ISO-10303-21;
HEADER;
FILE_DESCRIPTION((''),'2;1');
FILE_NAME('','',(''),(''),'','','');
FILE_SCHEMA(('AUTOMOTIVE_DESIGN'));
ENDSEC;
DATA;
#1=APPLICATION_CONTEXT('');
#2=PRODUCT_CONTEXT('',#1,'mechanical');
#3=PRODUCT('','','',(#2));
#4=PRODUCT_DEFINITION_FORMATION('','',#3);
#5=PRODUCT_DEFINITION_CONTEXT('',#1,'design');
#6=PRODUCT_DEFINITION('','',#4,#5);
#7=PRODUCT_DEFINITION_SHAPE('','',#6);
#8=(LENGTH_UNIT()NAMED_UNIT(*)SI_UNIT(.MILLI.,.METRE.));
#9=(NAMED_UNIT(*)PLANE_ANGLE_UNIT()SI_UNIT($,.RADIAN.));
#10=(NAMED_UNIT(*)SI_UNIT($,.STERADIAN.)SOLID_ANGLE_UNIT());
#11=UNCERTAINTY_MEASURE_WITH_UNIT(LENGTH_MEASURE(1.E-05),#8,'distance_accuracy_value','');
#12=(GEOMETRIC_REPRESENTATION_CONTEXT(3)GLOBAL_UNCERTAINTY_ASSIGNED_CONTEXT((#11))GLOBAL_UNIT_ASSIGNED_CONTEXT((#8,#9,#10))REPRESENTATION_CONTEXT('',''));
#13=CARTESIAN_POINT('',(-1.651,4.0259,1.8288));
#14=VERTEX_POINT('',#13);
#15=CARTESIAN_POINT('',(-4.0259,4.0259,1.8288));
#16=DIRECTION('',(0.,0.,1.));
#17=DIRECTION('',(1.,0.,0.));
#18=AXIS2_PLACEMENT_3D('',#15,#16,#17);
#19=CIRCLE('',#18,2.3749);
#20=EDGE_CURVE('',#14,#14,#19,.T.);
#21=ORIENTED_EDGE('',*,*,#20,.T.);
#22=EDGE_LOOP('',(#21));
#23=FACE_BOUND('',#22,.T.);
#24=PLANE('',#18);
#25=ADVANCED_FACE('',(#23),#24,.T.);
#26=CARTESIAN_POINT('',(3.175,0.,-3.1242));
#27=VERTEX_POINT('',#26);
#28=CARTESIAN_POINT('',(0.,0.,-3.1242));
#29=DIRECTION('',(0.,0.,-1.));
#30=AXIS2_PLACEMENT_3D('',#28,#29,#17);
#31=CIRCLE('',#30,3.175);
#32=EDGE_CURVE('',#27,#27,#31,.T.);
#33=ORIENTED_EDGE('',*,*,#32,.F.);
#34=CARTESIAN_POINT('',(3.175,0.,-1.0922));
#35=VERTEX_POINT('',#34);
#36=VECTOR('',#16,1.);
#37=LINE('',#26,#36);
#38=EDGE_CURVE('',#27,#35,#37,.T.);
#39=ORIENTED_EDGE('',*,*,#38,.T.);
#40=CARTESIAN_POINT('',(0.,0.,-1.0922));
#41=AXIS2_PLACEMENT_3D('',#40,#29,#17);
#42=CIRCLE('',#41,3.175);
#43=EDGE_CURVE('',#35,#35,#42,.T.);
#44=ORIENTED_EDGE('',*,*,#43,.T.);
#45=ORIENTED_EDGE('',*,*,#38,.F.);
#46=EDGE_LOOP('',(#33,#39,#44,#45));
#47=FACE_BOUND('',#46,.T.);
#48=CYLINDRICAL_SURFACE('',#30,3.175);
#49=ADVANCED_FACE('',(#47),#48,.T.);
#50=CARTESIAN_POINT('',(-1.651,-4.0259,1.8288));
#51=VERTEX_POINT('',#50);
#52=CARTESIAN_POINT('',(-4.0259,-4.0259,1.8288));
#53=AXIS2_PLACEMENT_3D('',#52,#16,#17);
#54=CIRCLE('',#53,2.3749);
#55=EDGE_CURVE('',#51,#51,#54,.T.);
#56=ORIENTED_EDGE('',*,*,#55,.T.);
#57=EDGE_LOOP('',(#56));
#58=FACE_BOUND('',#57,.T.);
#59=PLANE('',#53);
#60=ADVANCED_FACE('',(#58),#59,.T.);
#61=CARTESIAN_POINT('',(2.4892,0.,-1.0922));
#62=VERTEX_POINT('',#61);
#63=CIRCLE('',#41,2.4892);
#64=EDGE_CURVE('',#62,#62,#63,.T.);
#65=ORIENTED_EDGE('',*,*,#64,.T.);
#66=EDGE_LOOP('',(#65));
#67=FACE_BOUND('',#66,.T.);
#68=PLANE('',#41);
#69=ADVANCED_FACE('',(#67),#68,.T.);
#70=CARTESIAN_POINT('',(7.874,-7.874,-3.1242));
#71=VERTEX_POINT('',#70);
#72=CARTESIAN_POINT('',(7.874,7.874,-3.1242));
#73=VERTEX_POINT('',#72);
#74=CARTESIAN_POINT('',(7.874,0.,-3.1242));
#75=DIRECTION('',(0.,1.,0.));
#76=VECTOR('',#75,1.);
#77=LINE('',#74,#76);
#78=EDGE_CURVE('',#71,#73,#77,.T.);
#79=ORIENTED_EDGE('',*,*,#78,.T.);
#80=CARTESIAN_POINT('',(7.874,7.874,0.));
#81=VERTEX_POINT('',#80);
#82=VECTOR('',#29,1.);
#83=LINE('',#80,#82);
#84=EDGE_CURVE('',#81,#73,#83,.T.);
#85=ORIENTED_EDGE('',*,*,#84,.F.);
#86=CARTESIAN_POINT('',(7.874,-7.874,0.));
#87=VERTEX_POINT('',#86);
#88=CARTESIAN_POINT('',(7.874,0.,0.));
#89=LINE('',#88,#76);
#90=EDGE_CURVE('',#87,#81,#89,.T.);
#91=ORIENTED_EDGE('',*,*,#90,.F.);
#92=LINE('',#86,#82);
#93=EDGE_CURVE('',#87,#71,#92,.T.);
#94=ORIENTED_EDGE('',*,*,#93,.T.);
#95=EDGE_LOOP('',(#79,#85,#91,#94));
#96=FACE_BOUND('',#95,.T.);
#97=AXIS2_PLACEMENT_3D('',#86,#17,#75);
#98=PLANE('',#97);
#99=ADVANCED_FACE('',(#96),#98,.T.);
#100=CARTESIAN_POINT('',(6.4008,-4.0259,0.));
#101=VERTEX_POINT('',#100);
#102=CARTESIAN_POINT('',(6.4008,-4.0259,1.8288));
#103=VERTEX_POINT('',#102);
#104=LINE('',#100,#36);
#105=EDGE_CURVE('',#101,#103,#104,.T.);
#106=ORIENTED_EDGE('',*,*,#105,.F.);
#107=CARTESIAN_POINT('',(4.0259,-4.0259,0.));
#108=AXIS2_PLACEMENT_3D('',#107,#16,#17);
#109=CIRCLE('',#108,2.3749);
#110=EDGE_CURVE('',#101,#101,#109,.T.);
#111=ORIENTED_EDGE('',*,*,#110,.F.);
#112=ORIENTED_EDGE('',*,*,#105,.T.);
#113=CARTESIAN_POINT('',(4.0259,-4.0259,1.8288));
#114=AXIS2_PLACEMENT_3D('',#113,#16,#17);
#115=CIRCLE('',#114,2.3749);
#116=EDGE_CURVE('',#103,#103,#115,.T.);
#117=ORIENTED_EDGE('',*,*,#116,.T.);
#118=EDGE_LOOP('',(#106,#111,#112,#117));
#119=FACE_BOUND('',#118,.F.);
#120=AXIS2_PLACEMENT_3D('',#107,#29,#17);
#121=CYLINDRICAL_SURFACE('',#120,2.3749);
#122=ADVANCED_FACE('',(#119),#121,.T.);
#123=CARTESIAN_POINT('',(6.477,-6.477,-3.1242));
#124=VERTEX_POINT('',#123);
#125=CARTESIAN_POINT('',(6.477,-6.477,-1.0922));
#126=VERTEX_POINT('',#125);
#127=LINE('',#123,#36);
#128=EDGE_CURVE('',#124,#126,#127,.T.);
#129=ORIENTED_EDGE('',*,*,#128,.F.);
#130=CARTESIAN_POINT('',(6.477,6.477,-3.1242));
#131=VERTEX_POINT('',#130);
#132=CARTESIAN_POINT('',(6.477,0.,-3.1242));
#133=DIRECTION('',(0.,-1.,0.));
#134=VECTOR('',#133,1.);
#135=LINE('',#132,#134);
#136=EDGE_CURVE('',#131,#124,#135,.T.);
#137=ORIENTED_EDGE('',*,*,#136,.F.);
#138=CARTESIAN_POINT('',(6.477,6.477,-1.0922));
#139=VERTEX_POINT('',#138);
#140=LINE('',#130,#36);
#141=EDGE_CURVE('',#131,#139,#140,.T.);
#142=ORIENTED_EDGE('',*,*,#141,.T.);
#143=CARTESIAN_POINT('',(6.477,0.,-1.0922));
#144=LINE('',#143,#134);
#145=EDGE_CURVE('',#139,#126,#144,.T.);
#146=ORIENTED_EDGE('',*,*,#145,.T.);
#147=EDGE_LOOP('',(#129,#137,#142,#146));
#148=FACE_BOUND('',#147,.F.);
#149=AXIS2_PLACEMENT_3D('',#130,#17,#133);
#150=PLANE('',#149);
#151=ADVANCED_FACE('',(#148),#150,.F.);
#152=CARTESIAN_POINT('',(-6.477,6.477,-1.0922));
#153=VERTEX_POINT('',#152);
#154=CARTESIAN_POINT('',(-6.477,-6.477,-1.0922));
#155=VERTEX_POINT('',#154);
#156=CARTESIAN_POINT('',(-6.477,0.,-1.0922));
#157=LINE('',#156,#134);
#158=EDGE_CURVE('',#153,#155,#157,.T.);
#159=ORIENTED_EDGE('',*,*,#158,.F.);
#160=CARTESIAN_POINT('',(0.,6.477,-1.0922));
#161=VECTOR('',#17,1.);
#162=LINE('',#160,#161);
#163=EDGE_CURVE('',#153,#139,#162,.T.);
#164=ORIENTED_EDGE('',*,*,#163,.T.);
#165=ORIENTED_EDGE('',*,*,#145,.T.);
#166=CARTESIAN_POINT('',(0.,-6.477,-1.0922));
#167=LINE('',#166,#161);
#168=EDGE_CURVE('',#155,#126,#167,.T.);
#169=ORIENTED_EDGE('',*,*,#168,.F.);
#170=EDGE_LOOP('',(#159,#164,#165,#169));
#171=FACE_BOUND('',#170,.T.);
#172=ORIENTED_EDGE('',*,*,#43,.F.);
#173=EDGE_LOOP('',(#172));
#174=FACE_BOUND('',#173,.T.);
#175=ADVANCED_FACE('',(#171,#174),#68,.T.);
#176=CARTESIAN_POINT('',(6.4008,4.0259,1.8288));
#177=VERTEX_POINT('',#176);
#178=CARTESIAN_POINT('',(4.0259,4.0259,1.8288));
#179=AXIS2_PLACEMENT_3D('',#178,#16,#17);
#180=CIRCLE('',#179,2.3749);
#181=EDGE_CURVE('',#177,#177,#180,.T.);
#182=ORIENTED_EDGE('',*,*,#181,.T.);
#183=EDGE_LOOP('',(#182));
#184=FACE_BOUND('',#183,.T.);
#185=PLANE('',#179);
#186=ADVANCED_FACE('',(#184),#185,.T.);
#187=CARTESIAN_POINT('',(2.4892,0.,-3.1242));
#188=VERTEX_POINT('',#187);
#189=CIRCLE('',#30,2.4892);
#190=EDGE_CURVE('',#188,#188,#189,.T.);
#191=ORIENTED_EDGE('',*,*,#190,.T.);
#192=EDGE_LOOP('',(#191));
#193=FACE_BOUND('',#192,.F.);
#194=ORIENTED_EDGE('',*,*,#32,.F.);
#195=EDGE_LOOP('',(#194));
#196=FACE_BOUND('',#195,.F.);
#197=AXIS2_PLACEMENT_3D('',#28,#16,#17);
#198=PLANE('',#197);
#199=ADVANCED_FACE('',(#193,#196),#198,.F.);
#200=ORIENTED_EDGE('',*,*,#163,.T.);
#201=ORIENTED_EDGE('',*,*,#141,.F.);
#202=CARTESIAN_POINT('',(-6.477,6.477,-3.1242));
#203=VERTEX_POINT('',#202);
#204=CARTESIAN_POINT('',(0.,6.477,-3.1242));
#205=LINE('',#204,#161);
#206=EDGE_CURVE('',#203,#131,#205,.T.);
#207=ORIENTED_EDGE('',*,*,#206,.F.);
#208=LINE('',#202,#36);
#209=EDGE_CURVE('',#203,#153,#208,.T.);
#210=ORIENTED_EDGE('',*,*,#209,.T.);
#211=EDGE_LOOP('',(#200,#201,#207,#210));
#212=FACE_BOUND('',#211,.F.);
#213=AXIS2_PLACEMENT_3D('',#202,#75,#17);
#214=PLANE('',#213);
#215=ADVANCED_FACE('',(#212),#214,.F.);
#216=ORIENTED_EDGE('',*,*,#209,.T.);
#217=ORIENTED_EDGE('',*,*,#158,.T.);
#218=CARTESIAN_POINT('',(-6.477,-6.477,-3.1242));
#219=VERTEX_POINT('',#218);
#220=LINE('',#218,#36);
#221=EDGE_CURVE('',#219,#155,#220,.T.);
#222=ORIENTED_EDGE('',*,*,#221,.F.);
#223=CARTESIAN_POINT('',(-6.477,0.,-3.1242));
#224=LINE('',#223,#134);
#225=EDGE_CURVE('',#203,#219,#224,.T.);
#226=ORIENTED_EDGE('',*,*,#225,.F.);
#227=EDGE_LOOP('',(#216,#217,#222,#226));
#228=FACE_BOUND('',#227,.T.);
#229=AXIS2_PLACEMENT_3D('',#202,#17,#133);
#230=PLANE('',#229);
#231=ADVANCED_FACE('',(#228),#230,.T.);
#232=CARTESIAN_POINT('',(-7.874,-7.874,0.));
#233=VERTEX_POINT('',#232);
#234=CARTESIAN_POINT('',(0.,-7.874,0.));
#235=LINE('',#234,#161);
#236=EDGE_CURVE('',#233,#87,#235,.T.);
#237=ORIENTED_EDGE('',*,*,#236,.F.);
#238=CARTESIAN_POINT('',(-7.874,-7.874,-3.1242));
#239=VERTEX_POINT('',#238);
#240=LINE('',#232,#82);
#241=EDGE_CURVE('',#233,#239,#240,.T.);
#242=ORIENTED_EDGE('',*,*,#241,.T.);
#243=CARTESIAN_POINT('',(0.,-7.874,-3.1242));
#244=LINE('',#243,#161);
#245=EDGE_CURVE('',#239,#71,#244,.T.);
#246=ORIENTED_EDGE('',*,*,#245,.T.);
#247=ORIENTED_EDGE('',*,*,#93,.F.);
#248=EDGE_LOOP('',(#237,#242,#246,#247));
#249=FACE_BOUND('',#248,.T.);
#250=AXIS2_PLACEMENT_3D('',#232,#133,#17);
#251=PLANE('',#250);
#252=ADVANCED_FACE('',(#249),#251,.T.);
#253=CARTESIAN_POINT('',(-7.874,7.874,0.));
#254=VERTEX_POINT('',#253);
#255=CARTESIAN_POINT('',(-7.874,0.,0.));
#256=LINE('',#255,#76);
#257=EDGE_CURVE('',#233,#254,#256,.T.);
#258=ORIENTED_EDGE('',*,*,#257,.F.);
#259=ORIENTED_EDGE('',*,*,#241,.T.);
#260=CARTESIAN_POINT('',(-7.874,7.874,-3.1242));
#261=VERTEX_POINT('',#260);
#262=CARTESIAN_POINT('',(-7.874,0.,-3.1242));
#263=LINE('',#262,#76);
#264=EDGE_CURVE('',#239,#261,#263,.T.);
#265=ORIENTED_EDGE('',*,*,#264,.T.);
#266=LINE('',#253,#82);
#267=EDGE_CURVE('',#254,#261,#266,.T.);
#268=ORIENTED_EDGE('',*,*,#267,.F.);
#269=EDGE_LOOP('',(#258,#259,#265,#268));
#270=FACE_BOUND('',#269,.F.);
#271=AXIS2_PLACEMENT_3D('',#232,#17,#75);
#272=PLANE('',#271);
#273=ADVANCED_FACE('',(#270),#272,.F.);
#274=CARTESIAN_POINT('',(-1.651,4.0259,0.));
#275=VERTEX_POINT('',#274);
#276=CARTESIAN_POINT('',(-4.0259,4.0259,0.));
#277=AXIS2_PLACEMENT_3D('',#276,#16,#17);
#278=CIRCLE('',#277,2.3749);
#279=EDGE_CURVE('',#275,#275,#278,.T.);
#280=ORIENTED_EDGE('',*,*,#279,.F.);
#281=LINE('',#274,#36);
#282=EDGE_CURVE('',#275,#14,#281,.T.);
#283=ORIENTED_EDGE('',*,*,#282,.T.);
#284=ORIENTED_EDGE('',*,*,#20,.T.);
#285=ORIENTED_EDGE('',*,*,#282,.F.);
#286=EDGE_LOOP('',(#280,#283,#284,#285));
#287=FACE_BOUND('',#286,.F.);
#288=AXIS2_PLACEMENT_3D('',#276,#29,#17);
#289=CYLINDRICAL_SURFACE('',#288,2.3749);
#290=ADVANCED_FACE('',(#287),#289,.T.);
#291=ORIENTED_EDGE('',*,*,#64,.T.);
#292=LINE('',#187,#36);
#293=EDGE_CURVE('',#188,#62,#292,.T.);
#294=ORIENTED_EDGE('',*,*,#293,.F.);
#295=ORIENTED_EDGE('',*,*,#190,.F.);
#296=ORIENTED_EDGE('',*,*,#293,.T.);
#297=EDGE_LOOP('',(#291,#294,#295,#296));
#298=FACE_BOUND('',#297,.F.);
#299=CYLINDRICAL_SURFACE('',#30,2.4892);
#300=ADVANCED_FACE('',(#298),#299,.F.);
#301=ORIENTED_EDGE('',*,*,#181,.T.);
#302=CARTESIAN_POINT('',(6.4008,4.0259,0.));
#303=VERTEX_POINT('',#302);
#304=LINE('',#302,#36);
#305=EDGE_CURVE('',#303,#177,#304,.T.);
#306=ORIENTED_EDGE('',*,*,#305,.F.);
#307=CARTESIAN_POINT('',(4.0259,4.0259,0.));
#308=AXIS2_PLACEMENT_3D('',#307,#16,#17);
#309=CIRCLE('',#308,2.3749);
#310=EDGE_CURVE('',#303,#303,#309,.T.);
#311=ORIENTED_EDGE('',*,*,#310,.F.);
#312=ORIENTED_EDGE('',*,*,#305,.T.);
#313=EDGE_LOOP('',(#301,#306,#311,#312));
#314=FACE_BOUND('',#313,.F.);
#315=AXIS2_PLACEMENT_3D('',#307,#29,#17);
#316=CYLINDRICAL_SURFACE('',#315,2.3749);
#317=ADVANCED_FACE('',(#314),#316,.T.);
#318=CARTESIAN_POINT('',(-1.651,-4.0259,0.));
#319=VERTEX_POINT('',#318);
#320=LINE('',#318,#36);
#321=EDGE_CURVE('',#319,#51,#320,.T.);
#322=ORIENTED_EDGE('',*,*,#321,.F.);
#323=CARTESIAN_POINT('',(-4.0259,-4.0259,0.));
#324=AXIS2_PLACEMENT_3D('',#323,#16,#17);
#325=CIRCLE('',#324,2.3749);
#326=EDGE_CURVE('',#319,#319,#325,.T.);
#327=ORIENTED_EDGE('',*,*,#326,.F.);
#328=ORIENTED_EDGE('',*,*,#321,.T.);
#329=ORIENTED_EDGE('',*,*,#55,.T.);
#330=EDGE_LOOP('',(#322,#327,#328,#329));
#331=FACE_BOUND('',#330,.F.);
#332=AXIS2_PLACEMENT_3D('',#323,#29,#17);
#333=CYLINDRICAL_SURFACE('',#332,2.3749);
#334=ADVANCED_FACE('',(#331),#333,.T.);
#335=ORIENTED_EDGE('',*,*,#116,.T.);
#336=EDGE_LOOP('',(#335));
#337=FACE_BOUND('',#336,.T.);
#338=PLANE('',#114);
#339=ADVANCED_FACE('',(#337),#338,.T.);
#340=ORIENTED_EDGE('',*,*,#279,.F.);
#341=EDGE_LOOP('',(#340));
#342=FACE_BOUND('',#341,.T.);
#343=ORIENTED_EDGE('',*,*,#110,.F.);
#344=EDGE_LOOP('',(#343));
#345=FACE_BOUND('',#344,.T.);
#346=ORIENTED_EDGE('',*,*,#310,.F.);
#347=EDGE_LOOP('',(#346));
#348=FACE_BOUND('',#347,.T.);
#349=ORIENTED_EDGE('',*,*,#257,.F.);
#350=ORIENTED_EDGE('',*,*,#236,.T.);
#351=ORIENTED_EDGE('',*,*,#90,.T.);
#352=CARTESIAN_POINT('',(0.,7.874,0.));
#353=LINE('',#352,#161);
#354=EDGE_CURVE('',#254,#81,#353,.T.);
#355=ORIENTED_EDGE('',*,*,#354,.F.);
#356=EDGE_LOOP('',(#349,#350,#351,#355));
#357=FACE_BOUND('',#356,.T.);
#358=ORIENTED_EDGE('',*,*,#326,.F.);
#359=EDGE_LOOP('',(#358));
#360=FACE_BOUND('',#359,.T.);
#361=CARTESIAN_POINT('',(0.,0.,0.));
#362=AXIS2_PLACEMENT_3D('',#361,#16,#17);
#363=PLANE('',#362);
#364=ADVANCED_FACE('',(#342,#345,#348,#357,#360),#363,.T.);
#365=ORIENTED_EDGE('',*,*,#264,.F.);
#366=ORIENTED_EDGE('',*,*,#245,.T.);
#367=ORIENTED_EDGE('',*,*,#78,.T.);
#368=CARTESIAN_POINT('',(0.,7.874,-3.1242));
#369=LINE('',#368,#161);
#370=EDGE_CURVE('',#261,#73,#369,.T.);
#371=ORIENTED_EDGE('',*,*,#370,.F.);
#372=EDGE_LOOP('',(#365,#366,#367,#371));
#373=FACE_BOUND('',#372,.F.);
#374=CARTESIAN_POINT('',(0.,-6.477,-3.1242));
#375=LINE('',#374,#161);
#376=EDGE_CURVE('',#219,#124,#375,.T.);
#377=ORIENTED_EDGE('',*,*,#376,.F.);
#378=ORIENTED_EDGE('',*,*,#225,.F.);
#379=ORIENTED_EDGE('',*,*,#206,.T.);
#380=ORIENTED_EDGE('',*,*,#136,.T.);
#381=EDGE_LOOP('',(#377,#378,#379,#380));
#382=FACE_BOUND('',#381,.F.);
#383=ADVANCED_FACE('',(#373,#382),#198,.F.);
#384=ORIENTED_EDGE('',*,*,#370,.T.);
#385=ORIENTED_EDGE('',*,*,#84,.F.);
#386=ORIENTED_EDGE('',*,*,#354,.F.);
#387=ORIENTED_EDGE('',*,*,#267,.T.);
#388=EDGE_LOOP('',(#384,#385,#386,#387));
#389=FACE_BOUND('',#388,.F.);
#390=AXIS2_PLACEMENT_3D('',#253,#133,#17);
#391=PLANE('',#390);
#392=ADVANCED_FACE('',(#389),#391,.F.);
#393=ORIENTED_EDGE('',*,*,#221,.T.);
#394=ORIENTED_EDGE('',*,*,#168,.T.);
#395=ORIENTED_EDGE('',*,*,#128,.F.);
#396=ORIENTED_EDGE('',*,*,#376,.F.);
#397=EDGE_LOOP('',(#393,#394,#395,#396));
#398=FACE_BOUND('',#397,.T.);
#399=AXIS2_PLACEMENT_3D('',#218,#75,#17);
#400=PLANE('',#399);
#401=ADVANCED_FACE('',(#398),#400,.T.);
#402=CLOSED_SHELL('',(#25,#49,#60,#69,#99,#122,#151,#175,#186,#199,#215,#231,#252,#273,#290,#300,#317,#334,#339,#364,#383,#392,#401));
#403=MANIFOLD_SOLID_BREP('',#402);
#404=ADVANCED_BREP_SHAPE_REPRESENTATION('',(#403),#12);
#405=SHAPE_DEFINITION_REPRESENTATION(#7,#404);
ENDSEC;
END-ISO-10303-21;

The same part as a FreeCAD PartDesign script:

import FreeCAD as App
import Part
import Sketcher
Q = App.Units.Quantity

doc = App.newDocument("Part")
body = doc.addObject("PartDesign::Body", "Body")

sketch1 = body.newObject("Sketcher::SketchObject", "Sketch")
sketch1.AttachmentSupport = (doc.getObject("XY_Plane"), [""])
sketch1.MapMode = "FlatFace"
sketch1.addGeometry([
    Part.LineSegment(App.Vector(-8, 8, 0), App.Vector(-8, -8, 0)),
    Part.LineSegment(App.Vector(-8, -8, 0), App.Vector(8, -8, 0)),
    Part.LineSegment(App.Vector(8, -8, 0), App.Vector(8, 8, 0)),
    Part.LineSegment(App.Vector(8, 8, 0), App.Vector(-8, 8, 0)),
], False)
sketch1.addConstraint([
    Sketcher.Constraint("Coincident", 0, 2, 1, 1),
    Sketcher.Constraint("Coincident", 1, 2, 2, 1),
    Sketcher.Constraint("Coincident", 2, 2, 3, 1),
    Sketcher.Constraint("Coincident", 3, 2, 0, 1),
    Sketcher.Constraint("Vertical", 0),
    Sketcher.Constraint("Horizontal", 1),
    Sketcher.Constraint("Vertical", 2),
    Sketcher.Constraint("Horizontal", 3),
    Sketcher.Constraint("Symmetric", 0, 2, 2, 2, -1, 1),
    Sketcher.Constraint("Equal", 3, 0),
    Sketcher.Constraint("DistanceX", 1, 1, 1, 2, Q("0.62 in")),
])
pad1 = body.newObject("PartDesign::Pad", "Pad")
pad1.Profile = sketch1
pad1.Length = Q("0.123 in")
pad1.Reversed = True

sketch2 = body.newObject("Sketcher::SketchObject", "Sketch001")
sketch2.AttachmentSupport = (doc.getObject("XY_Plane"), [""])
sketch2.MapMode = "FlatFace"
sketch2.addGeometry([
    Part.Circle(App.Vector(-4, 4, 0), App.Vector(0, 0, 1), 2.4),
    Part.Circle(App.Vector(-4, -4, 0), App.Vector(0, 0, 1), 2.4),
    Part.Circle(App.Vector(4, -4, 0), App.Vector(0, 0, 1), 2.4),
    Part.Circle(App.Vector(4, 4, 0), App.Vector(0, 0, 1), 2.4),
], False)
sketch2.addConstraint([
    Sketcher.Constraint("Equal", 0, 1),
    Sketcher.Constraint("Equal", 1, 2),
    Sketcher.Constraint("Equal", 2, 3),
    Sketcher.Constraint("Symmetric", 0, 3, 2, 3, -1, 1),
    Sketcher.Constraint("Symmetric", 1, 3, 3, 3, -1, 1),
    Sketcher.Constraint("Symmetric", 1, 3, 2, 3, -2),
    Sketcher.Constraint("Diameter", 0, Q("0.187 in")),
    Sketcher.Constraint("DistanceY", 1, 3, 0, 3, Q("0.317 in")),
    Sketcher.Constraint("DistanceX", 1, 3, 2, 3, Q("0.317 in")),
])
pad2 = body.newObject("PartDesign::Pad", "Pad001")
pad2.Profile = sketch2
pad2.Length = Q("0.072 in")

sketch3 = body.newObject("Sketcher::SketchObject", "Sketch002")
sketch3.AttachmentSupport = (doc.getObject("XY_Plane"), [""])
sketch3.MapMode = "FlatFace"
sketch3.AttachmentOffset = App.Placement(App.Vector(0, 0, -0.123 * 25.4), App.Rotation())
sketch3.addGeometry([
    Part.LineSegment(App.Vector(-6.5, -6.5, 0), App.Vector(-6.5, 6.5, 0)),
    Part.LineSegment(App.Vector(-6.5, 6.5, 0), App.Vector(6.5, 6.5, 0)),
    Part.LineSegment(App.Vector(6.5, 6.5, 0), App.Vector(6.5, -6.5, 0)),
    Part.LineSegment(App.Vector(6.5, -6.5, 0), App.Vector(-6.5, -6.5, 0)),
    Part.Circle(App.Vector(0, 0, 0), App.Vector(0, 0, 1), 3.2),
], False)
sketch3.addConstraint([
    Sketcher.Constraint("Coincident", 0, 2, 1, 1),
    Sketcher.Constraint("Coincident", 1, 2, 2, 1),
    Sketcher.Constraint("Coincident", 2, 2, 3, 1),
    Sketcher.Constraint("Coincident", 3, 2, 0, 1),
    Sketcher.Constraint("Vertical", 0),
    Sketcher.Constraint("Horizontal", 1),
    Sketcher.Constraint("Vertical", 2),
    Sketcher.Constraint("Horizontal", 3),
    Sketcher.Constraint("Coincident", 4, 3, -1, 1),
    Sketcher.Constraint("Symmetric", 0, 2, 2, 2, -1, 1),
    Sketcher.Constraint("Equal", 3, 0),
    Sketcher.Constraint("Diameter", 4, Q("0.25 in")),
    Sketcher.Constraint("DistanceX", 1, 1, 1, 2, Q("0.51 in")),
])
pocket1 = body.newObject("PartDesign::Pocket", "Pocket")
pocket1.Profile = sketch3
pocket1.Length = Q("0.08 in")
pocket1.Reversed = True

sketch4 = body.newObject("Sketcher::SketchObject", "Sketch003")
sketch4.AttachmentSupport = (doc.getObject("XY_Plane"), [""])
sketch4.MapMode = "FlatFace"
sketch4.AttachmentOffset = App.Placement(App.Vector(0, 0, -0.123 * 25.4), App.Rotation())
sketch4.addGeometry(Part.Circle(App.Vector(0, 0, 0), App.Vector(0, 0, 1), 2.5), False)
sketch4.addConstraint([
    Sketcher.Constraint("Coincident", 0, 3, -1, 1),
    Sketcher.Constraint("Diameter", 0, Q("0.196 in")),
])
pocket2 = body.newObject("PartDesign::Pocket", "Pocket001")
pocket2.Profile = sketch4
pocket2.Length = Q("0.08 in")
pocket2.Reversed = True

doc.recompute()
